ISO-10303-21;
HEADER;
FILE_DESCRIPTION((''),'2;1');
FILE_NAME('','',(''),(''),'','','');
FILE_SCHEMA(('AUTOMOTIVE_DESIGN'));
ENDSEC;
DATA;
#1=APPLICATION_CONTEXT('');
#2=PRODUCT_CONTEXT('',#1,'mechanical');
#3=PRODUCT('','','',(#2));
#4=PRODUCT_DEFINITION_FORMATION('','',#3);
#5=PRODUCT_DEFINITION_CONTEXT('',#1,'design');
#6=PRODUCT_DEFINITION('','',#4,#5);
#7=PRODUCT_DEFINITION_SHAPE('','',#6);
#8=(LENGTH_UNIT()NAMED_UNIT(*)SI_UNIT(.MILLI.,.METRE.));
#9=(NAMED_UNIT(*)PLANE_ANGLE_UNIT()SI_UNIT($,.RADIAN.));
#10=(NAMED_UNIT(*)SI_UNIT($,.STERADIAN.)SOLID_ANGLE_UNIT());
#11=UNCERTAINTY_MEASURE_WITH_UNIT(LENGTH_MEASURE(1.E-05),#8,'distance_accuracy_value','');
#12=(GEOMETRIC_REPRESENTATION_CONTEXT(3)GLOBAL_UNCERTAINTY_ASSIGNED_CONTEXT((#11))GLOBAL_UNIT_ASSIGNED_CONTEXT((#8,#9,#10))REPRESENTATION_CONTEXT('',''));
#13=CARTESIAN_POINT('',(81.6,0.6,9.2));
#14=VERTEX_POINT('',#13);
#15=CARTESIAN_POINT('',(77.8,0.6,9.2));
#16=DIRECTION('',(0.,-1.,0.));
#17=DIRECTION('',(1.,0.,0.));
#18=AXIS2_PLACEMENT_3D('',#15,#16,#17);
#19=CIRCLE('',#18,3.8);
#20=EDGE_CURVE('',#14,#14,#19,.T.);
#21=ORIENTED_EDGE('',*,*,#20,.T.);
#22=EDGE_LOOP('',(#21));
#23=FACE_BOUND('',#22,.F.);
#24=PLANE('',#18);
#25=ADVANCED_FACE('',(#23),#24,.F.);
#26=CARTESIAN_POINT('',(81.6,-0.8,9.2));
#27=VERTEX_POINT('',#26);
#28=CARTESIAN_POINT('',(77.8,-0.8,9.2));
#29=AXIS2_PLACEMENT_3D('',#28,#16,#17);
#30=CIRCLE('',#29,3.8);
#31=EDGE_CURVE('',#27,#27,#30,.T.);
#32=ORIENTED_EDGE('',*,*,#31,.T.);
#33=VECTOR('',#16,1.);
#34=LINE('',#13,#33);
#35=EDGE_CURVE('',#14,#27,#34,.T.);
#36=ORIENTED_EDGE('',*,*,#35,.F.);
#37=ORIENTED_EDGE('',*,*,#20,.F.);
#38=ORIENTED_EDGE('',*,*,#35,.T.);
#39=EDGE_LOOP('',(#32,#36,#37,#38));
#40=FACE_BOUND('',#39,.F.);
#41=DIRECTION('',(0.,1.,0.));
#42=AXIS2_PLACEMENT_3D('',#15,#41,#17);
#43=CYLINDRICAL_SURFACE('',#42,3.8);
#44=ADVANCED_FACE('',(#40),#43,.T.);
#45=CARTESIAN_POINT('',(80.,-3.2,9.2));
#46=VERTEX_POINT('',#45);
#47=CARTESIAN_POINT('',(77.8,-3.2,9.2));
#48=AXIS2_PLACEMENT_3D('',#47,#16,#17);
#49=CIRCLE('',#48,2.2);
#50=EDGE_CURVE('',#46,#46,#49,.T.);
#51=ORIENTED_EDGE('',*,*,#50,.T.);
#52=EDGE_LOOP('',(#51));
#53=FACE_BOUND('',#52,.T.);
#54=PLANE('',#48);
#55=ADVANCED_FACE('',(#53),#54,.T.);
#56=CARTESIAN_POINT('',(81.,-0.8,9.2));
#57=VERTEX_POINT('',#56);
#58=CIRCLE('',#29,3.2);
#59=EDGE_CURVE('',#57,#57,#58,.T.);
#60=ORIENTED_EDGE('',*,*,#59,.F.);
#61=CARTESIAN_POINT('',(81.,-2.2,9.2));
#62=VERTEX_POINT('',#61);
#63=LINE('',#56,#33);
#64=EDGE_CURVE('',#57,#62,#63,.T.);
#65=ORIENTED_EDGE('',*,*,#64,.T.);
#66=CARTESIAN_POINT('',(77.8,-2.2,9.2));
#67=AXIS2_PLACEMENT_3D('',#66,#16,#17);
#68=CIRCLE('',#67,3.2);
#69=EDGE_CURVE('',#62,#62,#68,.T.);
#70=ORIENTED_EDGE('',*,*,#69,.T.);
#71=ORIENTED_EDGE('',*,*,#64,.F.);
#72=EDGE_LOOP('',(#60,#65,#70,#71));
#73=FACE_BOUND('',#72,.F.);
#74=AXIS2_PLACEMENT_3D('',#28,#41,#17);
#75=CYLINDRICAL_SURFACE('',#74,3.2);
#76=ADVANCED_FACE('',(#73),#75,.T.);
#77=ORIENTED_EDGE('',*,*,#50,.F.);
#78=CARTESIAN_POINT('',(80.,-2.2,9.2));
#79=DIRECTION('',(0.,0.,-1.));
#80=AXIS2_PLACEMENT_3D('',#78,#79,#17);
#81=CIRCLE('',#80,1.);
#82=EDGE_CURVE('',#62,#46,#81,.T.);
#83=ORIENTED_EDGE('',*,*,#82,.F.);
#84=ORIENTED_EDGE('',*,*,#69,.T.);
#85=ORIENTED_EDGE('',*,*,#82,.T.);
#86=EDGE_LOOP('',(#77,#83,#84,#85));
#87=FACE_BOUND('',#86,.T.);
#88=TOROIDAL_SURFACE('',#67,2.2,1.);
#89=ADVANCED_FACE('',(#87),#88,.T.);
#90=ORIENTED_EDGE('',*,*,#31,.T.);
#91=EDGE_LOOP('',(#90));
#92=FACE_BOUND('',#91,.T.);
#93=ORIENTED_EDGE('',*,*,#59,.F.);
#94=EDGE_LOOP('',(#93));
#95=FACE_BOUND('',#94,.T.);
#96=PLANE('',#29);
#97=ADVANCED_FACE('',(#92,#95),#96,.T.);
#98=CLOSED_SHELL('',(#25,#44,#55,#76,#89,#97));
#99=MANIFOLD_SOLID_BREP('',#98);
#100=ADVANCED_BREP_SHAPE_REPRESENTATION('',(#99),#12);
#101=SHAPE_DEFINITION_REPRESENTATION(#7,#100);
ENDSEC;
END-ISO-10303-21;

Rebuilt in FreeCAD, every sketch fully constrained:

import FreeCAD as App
import Part
import Sketcher
Q = App.Units.Quantity


def edges_at(feature, points):
    """Names of the edges that pass closest to the given points."""
    edges = feature.Shape.Edges
    near = lambda p: min(range(len(edges)), key=lambda i: edges[i].distToShape(Part.Vertex(*p))[0])
    return sorted({f"Edge{near(p) + 1}" for p in points})

doc = App.newDocument("Part")
params = doc.addObject("Spreadsheet::Sheet", "Params")
for row, (alias, value) in enumerate([
    ("sketch1_diameter", "7.6 mm"),
    ("pad1_length", "1.4 mm"),
    ("sketch2_diameter", "6.4 mm"),
    ("pad2_length", "2.4 mm"),
    ("fillet_radius", "1 mm"),
], start=1):
    params.set(f"A{row}", alias)
    params.set(f"B{row}", "=" + value)
    params.setAlias(f"B{row}", alias)

body = doc.addObject("PartDesign::Body", "Body")

# Sketch on XZ plane
sketch1 = body.newObject("Sketcher::SketchObject", "Sketch")
sketch1.AttachmentSupport = (doc.getObject("XZ_Plane"), [""])
sketch1.MapMode = "FlatFace"
sketch1.addGeometry(Part.Circle(App.Vector(28.8, 9.2, 0), App.Vector(0, 0, 1), 3.8), False)
sketch1.addConstraint(Sketcher.Constraint("Diameter", 0, Q("7.6 mm")))
sketch1.addConstraint(Sketcher.Constraint("DistanceX", -1, 1, 0, 3, Q("28.8 mm")))
sketch1.addConstraint(Sketcher.Constraint("DistanceY", -1, 1, 0, 3, Q("9.2 mm")))
sketch1.setExpression("Constraints[0]", "Params.sketch1_diameter")
pad1 = body.newObject("PartDesign::Pad", "Pad")
pad1.Profile = sketch1
pad1.setExpression("Length", "Params.pad1_length")

# Sketch on XZ plane
sketch2 = body.newObject("Sketcher::SketchObject", "Sketch001")
sketch2.AttachmentSupport = (doc.getObject("XZ_Plane"), [""])
sketch2.MapMode = "FlatFace"
sketch2.AttachmentOffset = App.Placement(App.Vector(0, 0, 1.4), App.Rotation())
sketch2.addGeometry(Part.Circle(App.Vector(28.8, 9.2, 0), App.Vector(0, 0, 1), 3.2), False)
sketch2.addConstraint(Sketcher.Constraint("Diameter", 0, Q("6.4 mm")))
sketch2.addConstraint(Sketcher.Constraint("DistanceX", -1, 1, 0, 3, Q("28.8 mm")))
sketch2.addConstraint(Sketcher.Constraint("DistanceY", -1, 1, 0, 3, Q("9.2 mm")))
sketch2.setExpression("Constraints[0]", "Params.sketch2_diameter")
pad2 = body.newObject("PartDesign::Pad", "Pad001")
pad2.Profile = sketch2
pad2.setExpression("Length", "Params.pad2_length")
doc.recompute()

fillet = body.newObject("PartDesign::Fillet", "Fillet")
fillet.Base = (pad2, edges_at(pad2, [(25.6, -3.8, 9.2)]))
fillet.setExpression("Radius", "Params.fillet_radius")
body2 = doc.addObject("PartDesign::Body", "Body001")
doc.recompute()

body.Placement = App.Placement(App.Vector(49, 0.6, 0), App.Rotation(App.Vector(0, 0, 1), 0))
boolean = body2.newObject("PartDesign::Boolean", "Boolean")
boolean.Type = "Fuse"
boolean.addObjects([body])

doc.recompute()
